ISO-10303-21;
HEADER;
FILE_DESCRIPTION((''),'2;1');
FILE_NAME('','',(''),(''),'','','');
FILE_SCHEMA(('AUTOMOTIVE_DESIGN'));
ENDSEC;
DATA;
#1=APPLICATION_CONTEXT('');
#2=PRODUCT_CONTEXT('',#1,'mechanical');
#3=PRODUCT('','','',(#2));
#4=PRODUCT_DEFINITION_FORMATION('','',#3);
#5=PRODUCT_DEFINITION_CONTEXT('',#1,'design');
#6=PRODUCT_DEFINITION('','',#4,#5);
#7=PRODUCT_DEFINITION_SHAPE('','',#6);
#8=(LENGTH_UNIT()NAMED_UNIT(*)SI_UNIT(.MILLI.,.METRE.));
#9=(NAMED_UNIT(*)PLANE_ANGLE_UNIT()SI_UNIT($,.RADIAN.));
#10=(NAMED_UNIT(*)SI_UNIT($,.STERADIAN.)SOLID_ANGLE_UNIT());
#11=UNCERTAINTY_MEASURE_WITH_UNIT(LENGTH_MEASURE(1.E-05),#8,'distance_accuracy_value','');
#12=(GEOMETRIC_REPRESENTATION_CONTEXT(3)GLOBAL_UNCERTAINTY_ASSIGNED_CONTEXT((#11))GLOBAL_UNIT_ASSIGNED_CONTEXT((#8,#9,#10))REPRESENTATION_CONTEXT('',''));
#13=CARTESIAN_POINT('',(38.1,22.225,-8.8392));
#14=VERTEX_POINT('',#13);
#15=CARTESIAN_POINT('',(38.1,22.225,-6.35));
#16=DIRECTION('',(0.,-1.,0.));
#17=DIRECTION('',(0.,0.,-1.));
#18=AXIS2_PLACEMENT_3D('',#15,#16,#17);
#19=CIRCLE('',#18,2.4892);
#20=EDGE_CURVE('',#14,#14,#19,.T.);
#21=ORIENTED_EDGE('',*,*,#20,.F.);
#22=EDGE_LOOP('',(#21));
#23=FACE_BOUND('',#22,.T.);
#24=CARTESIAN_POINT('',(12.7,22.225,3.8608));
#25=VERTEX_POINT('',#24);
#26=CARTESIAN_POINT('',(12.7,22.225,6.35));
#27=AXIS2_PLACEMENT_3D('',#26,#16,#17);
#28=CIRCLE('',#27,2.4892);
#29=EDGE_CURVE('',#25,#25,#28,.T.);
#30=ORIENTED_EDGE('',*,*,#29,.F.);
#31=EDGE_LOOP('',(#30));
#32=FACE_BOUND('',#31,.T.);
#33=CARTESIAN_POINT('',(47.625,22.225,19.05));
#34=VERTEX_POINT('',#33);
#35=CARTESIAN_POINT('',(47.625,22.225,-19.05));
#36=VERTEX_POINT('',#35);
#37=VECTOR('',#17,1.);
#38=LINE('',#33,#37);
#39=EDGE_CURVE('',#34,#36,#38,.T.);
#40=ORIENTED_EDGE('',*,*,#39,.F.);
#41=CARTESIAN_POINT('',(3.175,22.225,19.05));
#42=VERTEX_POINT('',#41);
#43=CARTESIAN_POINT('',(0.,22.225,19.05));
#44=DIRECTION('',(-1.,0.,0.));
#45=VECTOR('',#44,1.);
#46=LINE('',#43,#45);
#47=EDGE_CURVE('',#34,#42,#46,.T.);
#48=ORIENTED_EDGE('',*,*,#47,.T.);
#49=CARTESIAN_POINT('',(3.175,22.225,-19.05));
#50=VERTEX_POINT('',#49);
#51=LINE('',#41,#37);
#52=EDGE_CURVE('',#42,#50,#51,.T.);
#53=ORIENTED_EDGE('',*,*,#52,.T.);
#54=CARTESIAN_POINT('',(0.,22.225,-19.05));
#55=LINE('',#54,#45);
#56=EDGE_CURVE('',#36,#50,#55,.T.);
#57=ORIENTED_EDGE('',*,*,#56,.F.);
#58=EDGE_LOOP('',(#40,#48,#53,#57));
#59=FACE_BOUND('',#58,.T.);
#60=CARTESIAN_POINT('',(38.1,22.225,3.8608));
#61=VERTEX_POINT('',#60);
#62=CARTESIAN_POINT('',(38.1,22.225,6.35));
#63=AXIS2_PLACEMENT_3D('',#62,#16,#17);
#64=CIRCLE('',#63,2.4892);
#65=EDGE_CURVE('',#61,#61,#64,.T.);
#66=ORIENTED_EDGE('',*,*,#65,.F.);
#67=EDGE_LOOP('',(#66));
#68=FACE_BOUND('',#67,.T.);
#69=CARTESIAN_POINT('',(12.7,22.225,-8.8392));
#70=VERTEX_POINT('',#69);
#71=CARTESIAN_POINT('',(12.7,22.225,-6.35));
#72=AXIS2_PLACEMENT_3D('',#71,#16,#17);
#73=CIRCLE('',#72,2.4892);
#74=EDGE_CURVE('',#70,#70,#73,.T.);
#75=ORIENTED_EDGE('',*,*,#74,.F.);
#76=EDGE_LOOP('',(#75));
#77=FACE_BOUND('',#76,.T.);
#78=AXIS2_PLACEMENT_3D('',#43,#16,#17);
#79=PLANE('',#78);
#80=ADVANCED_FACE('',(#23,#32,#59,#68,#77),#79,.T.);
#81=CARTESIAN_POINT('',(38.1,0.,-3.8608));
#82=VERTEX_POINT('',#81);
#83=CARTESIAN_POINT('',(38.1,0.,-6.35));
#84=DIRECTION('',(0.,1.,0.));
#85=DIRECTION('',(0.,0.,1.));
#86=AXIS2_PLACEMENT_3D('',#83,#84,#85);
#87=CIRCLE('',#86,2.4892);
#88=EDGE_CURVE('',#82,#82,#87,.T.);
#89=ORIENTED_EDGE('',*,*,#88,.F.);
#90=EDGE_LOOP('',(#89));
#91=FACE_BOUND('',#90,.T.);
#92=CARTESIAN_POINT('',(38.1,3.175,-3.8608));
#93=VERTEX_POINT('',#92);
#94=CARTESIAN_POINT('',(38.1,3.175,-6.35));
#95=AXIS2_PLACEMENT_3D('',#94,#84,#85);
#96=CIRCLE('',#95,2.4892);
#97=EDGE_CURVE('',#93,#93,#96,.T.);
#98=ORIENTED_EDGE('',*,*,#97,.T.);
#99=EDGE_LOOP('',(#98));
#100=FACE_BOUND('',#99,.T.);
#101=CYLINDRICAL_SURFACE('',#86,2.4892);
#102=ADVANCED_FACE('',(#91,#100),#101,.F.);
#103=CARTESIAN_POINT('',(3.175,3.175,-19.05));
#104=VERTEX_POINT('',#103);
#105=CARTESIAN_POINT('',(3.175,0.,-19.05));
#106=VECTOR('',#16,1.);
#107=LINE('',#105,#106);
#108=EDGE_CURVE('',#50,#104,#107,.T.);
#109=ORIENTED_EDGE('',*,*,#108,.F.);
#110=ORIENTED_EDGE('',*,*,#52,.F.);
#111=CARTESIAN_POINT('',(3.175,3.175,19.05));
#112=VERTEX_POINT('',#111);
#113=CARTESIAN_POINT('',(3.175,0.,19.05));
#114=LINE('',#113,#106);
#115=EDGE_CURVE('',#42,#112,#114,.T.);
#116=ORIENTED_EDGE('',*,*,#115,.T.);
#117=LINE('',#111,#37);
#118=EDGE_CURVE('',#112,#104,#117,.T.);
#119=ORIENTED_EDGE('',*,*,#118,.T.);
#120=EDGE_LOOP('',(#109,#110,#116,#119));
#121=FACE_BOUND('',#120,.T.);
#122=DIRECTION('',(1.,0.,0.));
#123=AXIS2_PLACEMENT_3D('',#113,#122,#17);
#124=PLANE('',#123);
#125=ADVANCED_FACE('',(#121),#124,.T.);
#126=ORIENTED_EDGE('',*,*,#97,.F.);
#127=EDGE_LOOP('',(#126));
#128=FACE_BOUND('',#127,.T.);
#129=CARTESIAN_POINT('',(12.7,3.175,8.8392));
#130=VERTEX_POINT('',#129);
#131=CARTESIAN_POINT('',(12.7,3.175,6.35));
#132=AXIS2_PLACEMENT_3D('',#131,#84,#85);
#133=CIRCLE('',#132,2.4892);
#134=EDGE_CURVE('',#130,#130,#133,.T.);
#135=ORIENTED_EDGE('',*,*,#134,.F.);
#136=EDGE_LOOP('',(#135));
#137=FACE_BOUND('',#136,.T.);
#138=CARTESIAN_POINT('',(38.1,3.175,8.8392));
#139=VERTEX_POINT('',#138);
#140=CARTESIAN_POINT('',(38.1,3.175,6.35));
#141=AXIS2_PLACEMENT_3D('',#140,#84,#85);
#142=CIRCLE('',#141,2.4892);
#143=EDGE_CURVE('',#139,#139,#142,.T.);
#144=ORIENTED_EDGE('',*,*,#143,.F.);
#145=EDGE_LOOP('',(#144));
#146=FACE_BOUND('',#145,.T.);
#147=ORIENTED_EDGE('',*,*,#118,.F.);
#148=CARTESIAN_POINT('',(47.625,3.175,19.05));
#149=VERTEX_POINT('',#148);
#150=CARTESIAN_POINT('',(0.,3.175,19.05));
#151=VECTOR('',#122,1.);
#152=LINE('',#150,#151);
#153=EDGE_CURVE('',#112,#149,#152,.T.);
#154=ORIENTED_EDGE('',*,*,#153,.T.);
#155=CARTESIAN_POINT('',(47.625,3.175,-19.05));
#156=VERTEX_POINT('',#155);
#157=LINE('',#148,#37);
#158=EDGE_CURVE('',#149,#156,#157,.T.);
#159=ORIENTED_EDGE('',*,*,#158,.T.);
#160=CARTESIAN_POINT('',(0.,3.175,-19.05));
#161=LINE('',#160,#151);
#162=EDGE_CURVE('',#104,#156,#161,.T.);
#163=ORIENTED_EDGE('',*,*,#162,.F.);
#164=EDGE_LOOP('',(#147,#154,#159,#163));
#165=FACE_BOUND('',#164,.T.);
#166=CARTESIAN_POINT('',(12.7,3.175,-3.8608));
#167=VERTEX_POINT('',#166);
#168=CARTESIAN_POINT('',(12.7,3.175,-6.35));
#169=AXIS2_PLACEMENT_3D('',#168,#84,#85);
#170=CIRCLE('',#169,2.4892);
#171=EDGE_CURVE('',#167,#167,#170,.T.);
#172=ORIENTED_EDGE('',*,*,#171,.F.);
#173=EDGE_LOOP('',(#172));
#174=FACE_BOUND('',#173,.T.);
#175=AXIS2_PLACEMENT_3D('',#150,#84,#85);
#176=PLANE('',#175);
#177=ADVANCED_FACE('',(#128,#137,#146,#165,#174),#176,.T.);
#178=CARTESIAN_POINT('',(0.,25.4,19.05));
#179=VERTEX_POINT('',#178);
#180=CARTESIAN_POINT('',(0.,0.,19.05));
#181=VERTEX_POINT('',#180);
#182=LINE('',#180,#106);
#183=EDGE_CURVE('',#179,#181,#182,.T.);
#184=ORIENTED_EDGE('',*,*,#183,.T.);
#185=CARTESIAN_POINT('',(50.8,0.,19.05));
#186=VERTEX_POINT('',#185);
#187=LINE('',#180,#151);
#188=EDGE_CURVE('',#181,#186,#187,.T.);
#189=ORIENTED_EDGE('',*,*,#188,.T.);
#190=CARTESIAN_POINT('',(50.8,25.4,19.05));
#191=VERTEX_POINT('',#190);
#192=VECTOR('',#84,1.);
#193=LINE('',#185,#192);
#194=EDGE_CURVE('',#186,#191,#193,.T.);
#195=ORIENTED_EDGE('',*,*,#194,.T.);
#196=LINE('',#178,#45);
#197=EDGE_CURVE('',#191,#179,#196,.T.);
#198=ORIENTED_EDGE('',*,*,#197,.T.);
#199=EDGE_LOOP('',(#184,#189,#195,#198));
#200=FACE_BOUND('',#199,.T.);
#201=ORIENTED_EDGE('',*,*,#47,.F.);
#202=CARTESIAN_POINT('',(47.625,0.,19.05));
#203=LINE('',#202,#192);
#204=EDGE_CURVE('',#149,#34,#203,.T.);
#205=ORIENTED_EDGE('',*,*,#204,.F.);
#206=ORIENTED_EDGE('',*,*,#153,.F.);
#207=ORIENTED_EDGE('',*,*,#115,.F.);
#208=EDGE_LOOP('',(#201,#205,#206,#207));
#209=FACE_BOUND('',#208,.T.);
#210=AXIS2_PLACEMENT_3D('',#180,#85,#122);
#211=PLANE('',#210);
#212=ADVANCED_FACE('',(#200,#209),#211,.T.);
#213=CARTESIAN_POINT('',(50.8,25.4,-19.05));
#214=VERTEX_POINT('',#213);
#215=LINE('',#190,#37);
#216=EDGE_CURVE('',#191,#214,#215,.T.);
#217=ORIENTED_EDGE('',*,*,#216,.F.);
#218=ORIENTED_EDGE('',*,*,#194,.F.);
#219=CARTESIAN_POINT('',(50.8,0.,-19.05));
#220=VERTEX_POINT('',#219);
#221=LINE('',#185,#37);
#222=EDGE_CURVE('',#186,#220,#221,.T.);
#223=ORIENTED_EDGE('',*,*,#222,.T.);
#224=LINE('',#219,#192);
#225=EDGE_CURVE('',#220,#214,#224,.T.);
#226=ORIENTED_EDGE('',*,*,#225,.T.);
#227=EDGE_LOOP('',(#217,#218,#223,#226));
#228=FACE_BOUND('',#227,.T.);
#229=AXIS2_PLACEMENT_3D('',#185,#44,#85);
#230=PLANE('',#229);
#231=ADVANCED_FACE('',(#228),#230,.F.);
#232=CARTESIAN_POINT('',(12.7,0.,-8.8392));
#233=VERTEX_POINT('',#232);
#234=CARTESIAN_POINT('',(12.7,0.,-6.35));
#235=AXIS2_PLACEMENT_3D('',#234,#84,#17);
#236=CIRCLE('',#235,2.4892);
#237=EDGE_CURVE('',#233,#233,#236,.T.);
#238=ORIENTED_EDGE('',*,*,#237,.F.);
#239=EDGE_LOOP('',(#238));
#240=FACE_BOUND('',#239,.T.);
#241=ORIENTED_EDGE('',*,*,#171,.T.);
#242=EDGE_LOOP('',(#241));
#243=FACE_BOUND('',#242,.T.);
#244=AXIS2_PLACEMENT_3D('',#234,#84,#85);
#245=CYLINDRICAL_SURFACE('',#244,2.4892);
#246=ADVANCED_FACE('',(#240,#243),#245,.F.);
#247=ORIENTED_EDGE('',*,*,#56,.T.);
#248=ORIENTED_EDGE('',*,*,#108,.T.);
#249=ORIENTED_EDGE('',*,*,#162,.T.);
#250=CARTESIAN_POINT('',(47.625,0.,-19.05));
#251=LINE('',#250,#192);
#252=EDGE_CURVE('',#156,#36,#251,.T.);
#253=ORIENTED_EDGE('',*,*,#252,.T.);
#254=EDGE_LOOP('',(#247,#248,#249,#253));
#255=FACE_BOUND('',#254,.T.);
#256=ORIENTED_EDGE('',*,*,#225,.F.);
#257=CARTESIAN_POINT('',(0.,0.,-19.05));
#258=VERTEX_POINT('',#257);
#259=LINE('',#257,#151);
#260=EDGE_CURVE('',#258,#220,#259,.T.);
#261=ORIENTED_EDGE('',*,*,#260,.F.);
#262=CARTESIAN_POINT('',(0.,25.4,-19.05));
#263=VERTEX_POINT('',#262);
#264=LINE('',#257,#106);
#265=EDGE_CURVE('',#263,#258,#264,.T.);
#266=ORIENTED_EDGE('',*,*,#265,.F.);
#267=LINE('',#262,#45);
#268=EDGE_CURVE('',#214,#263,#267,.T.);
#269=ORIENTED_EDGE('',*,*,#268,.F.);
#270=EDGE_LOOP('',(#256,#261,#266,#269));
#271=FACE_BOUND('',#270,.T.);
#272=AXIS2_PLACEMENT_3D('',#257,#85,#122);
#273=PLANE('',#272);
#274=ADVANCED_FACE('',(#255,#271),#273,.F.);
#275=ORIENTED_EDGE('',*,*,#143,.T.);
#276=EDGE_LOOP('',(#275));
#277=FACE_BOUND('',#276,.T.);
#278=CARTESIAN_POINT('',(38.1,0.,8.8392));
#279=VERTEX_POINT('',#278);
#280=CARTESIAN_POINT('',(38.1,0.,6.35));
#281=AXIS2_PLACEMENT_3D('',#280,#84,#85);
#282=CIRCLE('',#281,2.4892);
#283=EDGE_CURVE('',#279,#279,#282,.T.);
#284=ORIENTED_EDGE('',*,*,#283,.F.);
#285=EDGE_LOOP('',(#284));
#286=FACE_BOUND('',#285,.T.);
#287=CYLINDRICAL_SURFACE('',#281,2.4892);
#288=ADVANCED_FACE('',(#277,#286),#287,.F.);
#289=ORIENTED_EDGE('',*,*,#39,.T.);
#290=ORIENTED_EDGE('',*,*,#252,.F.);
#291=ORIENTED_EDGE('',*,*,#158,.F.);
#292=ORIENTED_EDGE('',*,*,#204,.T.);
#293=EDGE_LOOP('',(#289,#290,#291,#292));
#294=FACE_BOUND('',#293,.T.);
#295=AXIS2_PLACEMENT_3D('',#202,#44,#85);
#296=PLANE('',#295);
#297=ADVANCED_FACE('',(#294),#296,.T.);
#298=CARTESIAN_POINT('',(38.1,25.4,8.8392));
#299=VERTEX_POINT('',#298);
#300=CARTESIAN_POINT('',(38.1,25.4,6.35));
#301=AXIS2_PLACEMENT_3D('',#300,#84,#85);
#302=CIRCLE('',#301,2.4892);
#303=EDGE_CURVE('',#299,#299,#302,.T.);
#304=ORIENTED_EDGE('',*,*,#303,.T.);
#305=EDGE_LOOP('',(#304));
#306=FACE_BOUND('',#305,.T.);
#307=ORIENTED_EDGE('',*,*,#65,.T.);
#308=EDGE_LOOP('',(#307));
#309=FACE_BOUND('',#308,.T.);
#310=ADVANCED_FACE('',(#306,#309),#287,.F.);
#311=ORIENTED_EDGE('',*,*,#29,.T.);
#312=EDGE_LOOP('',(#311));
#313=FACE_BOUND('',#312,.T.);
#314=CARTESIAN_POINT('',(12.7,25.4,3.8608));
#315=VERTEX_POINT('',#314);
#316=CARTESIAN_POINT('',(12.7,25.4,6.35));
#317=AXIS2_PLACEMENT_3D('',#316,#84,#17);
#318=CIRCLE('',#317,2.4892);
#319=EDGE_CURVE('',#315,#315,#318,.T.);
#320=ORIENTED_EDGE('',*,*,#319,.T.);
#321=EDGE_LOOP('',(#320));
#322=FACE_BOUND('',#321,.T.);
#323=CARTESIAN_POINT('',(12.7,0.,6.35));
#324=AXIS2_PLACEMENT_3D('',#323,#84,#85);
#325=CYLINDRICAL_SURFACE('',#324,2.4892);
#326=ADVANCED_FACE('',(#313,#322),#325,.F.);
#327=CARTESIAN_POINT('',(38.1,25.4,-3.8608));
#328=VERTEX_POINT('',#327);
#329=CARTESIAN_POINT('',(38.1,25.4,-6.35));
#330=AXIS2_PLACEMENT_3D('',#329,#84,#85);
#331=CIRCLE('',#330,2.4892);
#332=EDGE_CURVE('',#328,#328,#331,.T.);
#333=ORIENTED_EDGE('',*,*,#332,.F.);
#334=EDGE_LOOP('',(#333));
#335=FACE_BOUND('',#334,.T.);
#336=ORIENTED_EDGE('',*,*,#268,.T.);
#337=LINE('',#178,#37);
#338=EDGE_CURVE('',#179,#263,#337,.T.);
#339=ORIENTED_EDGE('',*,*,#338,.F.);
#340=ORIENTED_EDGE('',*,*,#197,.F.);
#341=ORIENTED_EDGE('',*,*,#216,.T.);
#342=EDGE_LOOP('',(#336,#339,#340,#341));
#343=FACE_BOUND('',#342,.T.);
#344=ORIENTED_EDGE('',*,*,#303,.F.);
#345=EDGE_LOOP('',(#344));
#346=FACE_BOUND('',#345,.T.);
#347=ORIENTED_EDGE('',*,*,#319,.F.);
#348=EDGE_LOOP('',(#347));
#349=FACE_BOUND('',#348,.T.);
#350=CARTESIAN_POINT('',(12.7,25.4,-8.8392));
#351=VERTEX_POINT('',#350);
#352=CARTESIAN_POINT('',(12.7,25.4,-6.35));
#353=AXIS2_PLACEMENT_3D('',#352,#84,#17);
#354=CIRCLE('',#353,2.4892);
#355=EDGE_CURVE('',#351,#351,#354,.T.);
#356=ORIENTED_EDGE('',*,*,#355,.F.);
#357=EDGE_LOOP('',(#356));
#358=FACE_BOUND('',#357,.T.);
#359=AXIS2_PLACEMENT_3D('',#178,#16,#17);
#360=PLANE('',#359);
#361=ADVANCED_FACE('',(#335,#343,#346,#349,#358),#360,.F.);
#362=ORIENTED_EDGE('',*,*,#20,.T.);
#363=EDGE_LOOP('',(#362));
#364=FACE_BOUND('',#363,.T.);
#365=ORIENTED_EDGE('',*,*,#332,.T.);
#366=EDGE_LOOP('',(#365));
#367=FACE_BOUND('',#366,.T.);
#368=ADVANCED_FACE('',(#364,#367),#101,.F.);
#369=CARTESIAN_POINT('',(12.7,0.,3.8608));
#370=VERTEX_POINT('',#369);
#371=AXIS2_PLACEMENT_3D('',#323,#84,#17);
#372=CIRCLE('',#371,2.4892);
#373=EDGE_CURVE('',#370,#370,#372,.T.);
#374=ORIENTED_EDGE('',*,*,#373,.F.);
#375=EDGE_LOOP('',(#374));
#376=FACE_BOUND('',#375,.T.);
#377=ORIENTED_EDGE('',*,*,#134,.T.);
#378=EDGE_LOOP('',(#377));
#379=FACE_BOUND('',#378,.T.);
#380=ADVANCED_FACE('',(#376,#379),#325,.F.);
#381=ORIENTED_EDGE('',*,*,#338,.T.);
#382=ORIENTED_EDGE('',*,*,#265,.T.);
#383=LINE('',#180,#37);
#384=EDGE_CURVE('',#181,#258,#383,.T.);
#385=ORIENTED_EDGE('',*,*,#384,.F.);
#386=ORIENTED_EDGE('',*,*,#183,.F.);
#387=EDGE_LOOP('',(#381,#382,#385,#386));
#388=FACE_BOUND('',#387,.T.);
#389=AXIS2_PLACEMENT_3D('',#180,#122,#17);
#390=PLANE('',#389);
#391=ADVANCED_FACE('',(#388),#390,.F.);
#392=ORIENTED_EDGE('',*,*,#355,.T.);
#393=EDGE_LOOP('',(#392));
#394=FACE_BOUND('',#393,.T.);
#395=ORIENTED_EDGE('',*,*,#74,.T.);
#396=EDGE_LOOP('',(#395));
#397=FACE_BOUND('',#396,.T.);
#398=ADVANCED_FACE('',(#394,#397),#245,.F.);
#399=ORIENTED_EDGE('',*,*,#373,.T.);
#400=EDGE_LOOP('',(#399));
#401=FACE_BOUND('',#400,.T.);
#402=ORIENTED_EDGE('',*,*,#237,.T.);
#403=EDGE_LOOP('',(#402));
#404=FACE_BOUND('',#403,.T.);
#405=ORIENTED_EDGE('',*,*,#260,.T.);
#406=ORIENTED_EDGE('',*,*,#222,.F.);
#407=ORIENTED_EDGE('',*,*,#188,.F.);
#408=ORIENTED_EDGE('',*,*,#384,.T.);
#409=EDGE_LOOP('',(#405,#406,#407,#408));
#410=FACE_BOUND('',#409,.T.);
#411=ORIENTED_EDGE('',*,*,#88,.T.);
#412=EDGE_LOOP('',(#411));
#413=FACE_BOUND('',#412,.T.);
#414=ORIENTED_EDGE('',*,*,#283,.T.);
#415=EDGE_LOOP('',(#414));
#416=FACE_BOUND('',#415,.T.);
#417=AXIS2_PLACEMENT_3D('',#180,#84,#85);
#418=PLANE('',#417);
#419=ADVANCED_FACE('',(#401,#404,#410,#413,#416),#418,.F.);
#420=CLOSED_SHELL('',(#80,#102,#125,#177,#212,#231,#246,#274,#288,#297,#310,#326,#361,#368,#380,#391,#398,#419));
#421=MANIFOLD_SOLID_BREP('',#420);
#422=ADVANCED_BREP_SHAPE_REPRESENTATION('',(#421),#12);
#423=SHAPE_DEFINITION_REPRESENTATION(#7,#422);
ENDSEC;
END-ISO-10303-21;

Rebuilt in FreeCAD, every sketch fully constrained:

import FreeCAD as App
import Part
import Sketcher

V = App.Vector
Q = App.Units.Quantity


def add_polygon(sketch, points):
    """Adds a closed chain of lines whose ends are joined by coincident constraints."""
    first, n = sketch.GeometryCount, len(points)
    for a, b in zip(points, points[1:] + points[:1]):
        sketch.addGeometry(Part.LineSegment(App.Vector(*a, 0), App.Vector(*b, 0)), False)
    for i in range(n):
        sketch.addConstraint(Sketcher.Constraint("Coincident", first + i, 2, first + (i + 1) % n, 1))

doc = App.newDocument("Part")
body = doc.addObject("PartDesign::Body", "Body")

sketch1 = doc.addObject("Sketcher::SketchObject", "Sketch")
body.addObject(sketch1)
sketch1.AttachmentSupport = (doc.XY_Plane, [""])
sketch1.MapMode = "FlatFace"
add_polygon(sketch1, [(0, 25.4), (0, 0), (50.8, 0), (50.8, 25.4)])
add_polygon(sketch1, [(47.625, 3.175), (3.175, 3.175), (3.175, 22.225), (47.625, 22.225)])
sketch1.addConstraint(Sketcher.Constraint("Vertical", 0))
sketch1.addConstraint(Sketcher.Constraint("Horizontal", 1))
sketch1.addConstraint(Sketcher.Constraint("Vertical", 2))
sketch1.addConstraint(Sketcher.Constraint("Horizontal", 3))
sketch1.addConstraint(Sketcher.Constraint("Horizontal", 4))
sketch1.addConstraint(Sketcher.Constraint("Vertical", 5))
sketch1.addConstraint(Sketcher.Constraint("Horizontal", 6))
sketch1.addConstraint(Sketcher.Constraint("Vertical", 7))
sketch1.addConstraint(Sketcher.Constraint("Coincident", 0, 2, -1, 1))
sketch1.addConstraint(Sketcher.Constraint("DistanceX", 1, 1, 1, 2, Q("2 in")))
sketch1.addConstraint(Sketcher.Constraint("DistanceY", 0, 2, 0, 1, Q("1 in")))
sketch1.addConstraint(Sketcher.Constraint("DistanceX", 4, 2, 4, 1, Q("1.75 in")))
sketch1.addConstraint(Sketcher.Constraint("DistanceY", 5, 1, 5, 2, Q("0.75 in")))
sketch1.addConstraint(Sketcher.Constraint("DistanceX", -1, 1, 4, 2, Q("0.125 in")))
sketch1.addConstraint(Sketcher.Constraint("DistanceY", -1, 1, 4, 2, Q("0.125 in")))
pad1 = doc.addObject("PartDesign::Pad", "Pad")
body.addObject(pad1)
pad1.Profile = sketch1
pad1.Length = Q("1.5 in")
pad1.Midplane = True

sketch2 = doc.addObject("Sketcher::SketchObject", "Sketch001")
body.addObject(sketch2)
sketch2.AttachmentSupport = (doc.XZ_Plane, [""])
sketch2.MapMode = "FlatFace"
sketch2.AttachmentOffset = App.Placement(V(0, 0, -1 * 25.4), App.Rotation())
sketch2.addGeometry(Part.Circle(V(38.1, -6.35, 0), V(0, 0, 1), 2.4892), False)
sketch2.addGeometry(Part.Circle(V(38.1, 6.35, 0), V(0, 0, 1), 2.4892), False)
sketch2.addGeometry(Part.Circle(V(12.7, 6.35, 0), V(0, 0, 1), 2.4892), False)
sketch2.addGeometry(Part.Circle(V(12.7, -6.35, 0), V(0, 0, 1), 2.4892), False)
sketch2.addConstraint(Sketcher.Constraint("Equal", 0, 1))
sketch2.addConstraint(Sketcher.Constraint("Equal", 1, 2))
sketch2.addConstraint(Sketcher.Constraint("Equal", 2, 3))
sketch2.addConstraint(Sketcher.Constraint("Symmetric", 0, 3, 1, 3, -1))
sketch2.addConstraint(Sketcher.Constraint("Symmetric", 2, 3, 3, 3, -1))
sketch2.addConstraint(Sketcher.Constraint("Horizontal", 1, 3, 2, 3))
sketch2.addConstraint(Sketcher.Constraint("Diameter", 0, Q("0.196 in")))
sketch2.addConstraint(Sketcher.Constraint("DistanceX", 2, 3, 1, 3, Q("1 in")))
sketch2.addConstraint(Sketcher.Constraint("DistanceX", -1, 1, 0, 3, Q("1.5 in")))
sketch2.addConstraint(Sketcher.Constraint("DistanceY", 0, 3, 1, 3, Q("0.5 in")))
pocket1 = doc.addObject("PartDesign::Pocket", "Pocket")
body.addObject(pocket1)
pocket1.Profile = sketch2
pocket1.Type = "ThroughAll"
pocket1.Reversed = True

doc.recompute()
